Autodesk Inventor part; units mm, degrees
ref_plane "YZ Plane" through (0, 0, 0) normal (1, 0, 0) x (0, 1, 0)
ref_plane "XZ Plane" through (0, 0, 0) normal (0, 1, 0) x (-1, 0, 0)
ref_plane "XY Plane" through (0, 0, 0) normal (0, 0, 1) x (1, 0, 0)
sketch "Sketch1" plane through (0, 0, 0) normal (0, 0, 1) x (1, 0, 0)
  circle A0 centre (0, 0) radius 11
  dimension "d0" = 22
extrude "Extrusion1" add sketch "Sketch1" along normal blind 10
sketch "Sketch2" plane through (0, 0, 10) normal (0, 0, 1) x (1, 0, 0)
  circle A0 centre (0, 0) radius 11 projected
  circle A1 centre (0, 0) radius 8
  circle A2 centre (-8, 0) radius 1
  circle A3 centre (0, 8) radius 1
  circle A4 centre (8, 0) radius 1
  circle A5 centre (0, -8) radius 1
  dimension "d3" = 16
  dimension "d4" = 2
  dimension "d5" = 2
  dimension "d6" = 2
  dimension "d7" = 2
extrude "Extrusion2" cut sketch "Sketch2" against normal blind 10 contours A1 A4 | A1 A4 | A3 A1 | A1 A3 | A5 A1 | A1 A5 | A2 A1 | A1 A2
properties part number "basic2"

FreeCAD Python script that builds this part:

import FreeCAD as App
import Part
import Sketcher

V = App.Vector

doc = App.newDocument("Part")
params = doc.addObject("Spreadsheet::Sheet", "Params")
for row, (alias, value) in enumerate([
    ("sketch1_diameter", "22 mm"),
    ("pad1_length", "10 mm"),
    ("sketch2_diameter", "2 mm"),
    ("pocket1_length", "10 mm"),
], start=1):
    params.set(f"A{row}", alias)
    params.set(f"B{row}", "=" + value)
    params.setAlias(f"B{row}", alias)

body = doc.addObject("PartDesign::Body", "Body")

# Sketch on XY plane
sketch1 = body.newObject("Sketcher::SketchObject", "Sketch")
sketch1.AttachmentSupport = (doc.getObject("XY_Plane"), [""])
sketch1.MapMode = "FlatFace"
sketch1.addGeometry(Part.Circle(V(0, 0, 0), V(0, 0, 1), 11), False)
sketch1.addConstraint([
    Sketcher.Constraint("Coincident", 0, 3, -1, 1),
    Sketcher.Constraint("Diameter", 0, 22.0),
])
sketch1.setExpression("Constraints[1]", "Params.sketch1_diameter")
pad1 = body.newObject("PartDesign::Pad", "Pad")
pad1.Profile = sketch1
pad1.setExpression("Length", "Params.pad1_length")

# Sketch on XY plane
sketch2 = body.newObject("Sketcher::SketchObject", "Sketch001")
sketch2.AttachmentSupport = (doc.getObject("XY_Plane"), [""])
sketch2.MapMode = "FlatFace"
sketch2.AttachmentOffset = App.Placement(V(0, 0, 10), App.Rotation())
sketch2.addGeometry([
    Part.Circle(V(8, 0, 0), V(0, 0, 1), 1),
    Part.Circle(V(0, 8, 0), V(0, 0, 1), 1),
    Part.Circle(V(0, -8, 0), V(0, 0, 1), 1),
    Part.Circle(V(-8, 0, 0), V(0, 0, 1), 1),
], False)
sketch2.addConstraint([
    Sketcher.Constraint("Equal", 0, 1),
    Sketcher.Constraint("Equal", 1, 2),
    Sketcher.Constraint("Equal", 2, 3),
    Sketcher.Constraint("Symmetric", 1, 3, 2, 3, -1, 1),
    Sketcher.Constraint("Symmetric", 0, 3, 3, 3, -1, 1),
    Sketcher.Constraint("PointOnObject", 0, 3, -1),
    Sketcher.Constraint("PointOnObject", 1, 3, -2),
    Sketcher.Constraint("Diameter", 0, 2.0),
    Sketcher.Constraint("DistanceY", 2, 3, 1, 3, 16.0),
    Sketcher.Constraint("DistanceX", 3, 3, 0, 3, 16.0),
])
sketch2.setExpression("Constraints[7]", "Params.sketch2_diameter")
pocket1 = body.newObject("PartDesign::Pocket", "Pocket")
pocket1.Profile = sketch2
pocket1.setExpression("Length", "Params.pocket1_length")

doc.recompute()
